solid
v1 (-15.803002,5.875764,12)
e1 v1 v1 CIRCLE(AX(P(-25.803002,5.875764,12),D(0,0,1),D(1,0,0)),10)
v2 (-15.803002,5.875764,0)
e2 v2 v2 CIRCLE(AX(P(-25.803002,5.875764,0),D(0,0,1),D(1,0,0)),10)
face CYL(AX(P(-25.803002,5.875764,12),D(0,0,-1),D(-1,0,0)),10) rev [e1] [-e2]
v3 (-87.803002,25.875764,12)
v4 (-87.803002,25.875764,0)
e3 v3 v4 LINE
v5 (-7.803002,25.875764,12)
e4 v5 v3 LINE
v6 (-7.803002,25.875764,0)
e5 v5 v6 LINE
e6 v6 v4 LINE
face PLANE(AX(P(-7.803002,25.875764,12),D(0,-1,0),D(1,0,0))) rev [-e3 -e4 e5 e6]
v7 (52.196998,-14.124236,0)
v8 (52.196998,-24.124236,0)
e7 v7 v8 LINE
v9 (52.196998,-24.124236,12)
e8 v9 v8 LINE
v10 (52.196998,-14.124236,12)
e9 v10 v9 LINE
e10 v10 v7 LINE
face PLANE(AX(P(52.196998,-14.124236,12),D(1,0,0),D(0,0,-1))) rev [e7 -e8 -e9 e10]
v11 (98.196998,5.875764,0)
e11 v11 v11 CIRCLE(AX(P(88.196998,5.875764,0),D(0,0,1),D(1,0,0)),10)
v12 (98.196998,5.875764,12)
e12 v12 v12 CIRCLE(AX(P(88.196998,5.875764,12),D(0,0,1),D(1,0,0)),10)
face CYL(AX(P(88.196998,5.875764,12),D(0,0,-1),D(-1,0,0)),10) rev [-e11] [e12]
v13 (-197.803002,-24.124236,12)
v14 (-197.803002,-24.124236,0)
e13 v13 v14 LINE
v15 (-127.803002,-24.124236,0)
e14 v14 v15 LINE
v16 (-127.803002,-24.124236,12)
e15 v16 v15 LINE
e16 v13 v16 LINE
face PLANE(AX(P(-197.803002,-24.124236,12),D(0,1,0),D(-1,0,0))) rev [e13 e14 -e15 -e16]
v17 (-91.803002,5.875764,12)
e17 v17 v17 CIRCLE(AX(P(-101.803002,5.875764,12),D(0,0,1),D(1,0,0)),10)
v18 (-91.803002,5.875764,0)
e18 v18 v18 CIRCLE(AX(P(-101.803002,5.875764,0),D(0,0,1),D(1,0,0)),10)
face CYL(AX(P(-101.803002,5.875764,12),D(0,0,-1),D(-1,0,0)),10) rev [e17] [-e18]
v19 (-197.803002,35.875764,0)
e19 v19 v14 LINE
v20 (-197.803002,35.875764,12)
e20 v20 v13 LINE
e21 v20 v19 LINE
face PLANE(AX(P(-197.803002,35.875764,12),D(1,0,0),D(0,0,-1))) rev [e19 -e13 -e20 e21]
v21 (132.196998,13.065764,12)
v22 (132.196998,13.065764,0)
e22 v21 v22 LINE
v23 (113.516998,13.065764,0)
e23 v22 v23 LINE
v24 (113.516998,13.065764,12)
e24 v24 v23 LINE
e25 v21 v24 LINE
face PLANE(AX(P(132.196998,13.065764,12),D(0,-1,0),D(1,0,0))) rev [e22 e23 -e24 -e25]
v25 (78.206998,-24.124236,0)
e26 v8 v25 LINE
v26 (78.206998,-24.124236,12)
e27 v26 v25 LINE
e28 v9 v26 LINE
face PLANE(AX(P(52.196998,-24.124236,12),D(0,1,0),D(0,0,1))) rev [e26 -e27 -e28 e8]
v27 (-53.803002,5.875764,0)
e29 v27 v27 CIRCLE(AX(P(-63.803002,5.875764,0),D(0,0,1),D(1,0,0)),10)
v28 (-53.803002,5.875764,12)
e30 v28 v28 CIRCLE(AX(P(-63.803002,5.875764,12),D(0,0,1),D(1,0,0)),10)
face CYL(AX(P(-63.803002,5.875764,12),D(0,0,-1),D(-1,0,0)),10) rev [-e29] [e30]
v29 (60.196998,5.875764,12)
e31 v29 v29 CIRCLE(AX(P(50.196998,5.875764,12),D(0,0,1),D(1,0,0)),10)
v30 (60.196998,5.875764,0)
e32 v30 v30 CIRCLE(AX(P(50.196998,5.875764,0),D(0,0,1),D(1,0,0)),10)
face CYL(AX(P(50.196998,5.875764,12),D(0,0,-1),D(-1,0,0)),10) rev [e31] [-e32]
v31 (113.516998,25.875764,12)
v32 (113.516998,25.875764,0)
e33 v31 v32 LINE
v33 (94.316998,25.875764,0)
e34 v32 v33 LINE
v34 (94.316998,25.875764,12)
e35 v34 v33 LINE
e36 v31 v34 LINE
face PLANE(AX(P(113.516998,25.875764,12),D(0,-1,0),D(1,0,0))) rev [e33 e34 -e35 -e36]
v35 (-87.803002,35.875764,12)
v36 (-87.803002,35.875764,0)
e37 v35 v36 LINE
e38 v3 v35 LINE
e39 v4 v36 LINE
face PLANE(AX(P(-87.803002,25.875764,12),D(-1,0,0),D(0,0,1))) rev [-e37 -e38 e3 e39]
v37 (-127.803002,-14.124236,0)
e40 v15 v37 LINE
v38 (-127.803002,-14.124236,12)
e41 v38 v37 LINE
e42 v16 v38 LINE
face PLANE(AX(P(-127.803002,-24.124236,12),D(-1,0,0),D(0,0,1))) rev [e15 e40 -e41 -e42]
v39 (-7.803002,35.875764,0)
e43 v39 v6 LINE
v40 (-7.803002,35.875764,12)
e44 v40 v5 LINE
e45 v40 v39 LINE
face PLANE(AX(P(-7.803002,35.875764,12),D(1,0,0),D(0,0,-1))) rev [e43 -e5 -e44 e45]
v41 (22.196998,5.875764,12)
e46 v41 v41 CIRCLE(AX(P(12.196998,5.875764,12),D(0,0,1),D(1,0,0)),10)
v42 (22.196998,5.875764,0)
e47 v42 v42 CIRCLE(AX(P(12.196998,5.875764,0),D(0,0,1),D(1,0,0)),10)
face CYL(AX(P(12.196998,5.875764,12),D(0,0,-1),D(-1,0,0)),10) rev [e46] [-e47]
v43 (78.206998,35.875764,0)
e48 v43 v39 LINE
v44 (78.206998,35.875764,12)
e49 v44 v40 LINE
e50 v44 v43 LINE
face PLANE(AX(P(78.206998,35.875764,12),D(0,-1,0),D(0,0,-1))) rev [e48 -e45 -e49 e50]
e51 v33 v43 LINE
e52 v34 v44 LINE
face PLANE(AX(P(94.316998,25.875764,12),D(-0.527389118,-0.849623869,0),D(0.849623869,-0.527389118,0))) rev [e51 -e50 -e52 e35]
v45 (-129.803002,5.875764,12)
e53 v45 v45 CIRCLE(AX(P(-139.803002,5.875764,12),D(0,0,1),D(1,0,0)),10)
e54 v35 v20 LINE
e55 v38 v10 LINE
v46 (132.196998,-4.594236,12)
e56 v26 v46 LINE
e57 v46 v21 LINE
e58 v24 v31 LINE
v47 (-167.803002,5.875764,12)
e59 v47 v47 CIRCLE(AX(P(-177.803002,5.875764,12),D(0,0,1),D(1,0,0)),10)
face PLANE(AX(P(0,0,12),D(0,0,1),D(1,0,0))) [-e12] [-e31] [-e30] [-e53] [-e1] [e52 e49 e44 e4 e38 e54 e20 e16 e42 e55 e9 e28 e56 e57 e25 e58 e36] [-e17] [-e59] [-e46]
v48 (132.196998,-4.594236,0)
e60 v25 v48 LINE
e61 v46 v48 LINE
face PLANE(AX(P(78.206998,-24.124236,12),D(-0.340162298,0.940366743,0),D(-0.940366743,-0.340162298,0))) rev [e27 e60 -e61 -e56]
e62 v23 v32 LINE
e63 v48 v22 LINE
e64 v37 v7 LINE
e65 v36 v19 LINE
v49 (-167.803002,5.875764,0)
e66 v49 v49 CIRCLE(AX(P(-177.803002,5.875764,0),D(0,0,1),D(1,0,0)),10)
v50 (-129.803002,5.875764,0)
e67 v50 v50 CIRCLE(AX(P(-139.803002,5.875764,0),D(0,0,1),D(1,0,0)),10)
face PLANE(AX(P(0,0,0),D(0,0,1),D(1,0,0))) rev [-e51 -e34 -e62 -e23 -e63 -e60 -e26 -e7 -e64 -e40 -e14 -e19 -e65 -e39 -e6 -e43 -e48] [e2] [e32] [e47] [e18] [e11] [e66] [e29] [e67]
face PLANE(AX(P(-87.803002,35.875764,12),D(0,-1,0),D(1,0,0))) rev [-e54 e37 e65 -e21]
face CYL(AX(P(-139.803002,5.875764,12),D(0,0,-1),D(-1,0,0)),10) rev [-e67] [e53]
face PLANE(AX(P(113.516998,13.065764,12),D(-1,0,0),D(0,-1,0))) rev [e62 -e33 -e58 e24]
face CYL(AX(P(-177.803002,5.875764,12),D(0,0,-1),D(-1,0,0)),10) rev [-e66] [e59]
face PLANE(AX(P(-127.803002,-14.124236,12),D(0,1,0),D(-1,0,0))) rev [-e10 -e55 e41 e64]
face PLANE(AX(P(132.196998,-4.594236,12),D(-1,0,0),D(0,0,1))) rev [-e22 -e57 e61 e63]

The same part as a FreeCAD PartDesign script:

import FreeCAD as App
import Part
import Sketcher


def add_polygon(sketch, points):
    """Adds a closed chain of lines whose ends are joined by coincident constraints."""
    first, n = sketch.GeometryCount, len(points)
    for a, b in zip(points, points[1:] + points[:1]):
        sketch.addGeometry(Part.LineSegment(App.Vector(*a, 0), App.Vector(*b, 0)), False)
    for i in range(n):
        sketch.addConstraint(Sketcher.Constraint("Coincident", first + i, 2, first + (i + 1) % n, 1))

doc = App.newDocument("Part")
body = doc.addObject("PartDesign::Body", "Body")

sketch1 = body.newObject("Sketcher::SketchObject", "Sketch")
sketch1.AttachmentSupport = (doc.getObject("XY_Plane"), [""])
sketch1.MapMode = "FlatFace"
add_polygon(sketch1, [(-197.803002, 35.875764), (-197.803002, -24.124236), (-127.803002, -24.124236), (-127.803002, -14.124236), (52.196998, -14.124236), (52.196998, -24.124236), (78.206998, -24.124236), (132.196998, -4.594236), (132.196998, 13.065764), (113.516998, 13.065764), (113.516998, 25.875764), (94.316998, 25.875764), (78.206998, 35.875764), (-7.803002, 35.875764), (-7.803002, 25.875764), (-87.803002, 25.875764), (-87.803002, 35.875764)])
sketch1.addGeometry(Part.Circle(App.Vector(-177.803002, 5.875764, 0), App.Vector(0, 0, 1), 10), False)
sketch1.addGeometry(Part.Circle(App.Vector(-139.803002, 5.875764, 0), App.Vector(0, 0, 1), 10), False)
sketch1.addGeometry(Part.Circle(App.Vector(-101.803002, 5.875764, 0), App.Vector(0, 0, 1), 10), False)
sketch1.addGeometry(Part.Circle(App.Vector(-63.803002, 5.875764, 0), App.Vector(0, 0, 1), 10), False)
sketch1.addGeometry(Part.Circle(App.Vector(-25.803002, 5.875764, 0), App.Vector(0, 0, 1), 10), False)
sketch1.addGeometry(Part.Circle(App.Vector(12.196998, 5.875764, 0), App.Vector(0, 0, 1), 10), False)
sketch1.addGeometry(Part.Circle(App.Vector(50.196998, 5.875764, 0), App.Vector(0, 0, 1), 10), False)
sketch1.addGeometry(Part.Circle(App.Vector(88.196998, 5.875764, 0), App.Vector(0, 0, 1), 10), False)
sketch1.addConstraint([
    Sketcher.Constraint("Vertical", 0),
    Sketcher.Constraint("Horizontal", 1),
    Sketcher.Constraint("Vertical", 2),
    Sketcher.Constraint("Horizontal", 3),
    Sketcher.Constraint("Vertical", 4),
    Sketcher.Constraint("Horizontal", 5),
    Sketcher.Constraint("Vertical", 7),
    Sketcher.Constraint("Horizontal", 8),
    Sketcher.Constraint("Vertical", 9),
    Sketcher.Constraint("Horizontal", 10),
    Sketcher.Constraint("Horizontal", 12),
    Sketcher.Constraint("Vertical", 13),
    Sketcher.Constraint("Horizontal", 14),
    Sketcher.Constraint("Vertical", 15),
    Sketcher.Constraint("Horizontal", 16),
    Sketcher.Constraint("Equal", 17, 18),
    Sketcher.Constraint("Equal", 18, 19),
    Sketcher.Constraint("Equal", 19, 20),
    Sketcher.Constraint("Equal", 20, 21),
    Sketcher.Constraint("Equal", 21, 22),
    Sketcher.Constraint("Equal", 22, 23),
    Sketcher.Constraint("Equal", 23, 24),
    Sketcher.Constraint("Horizontal", 17, 3, 18, 3),
    Sketcher.Constraint("Horizontal", 18, 3, 19, 3),
    Sketcher.Constraint("Horizontal", 19, 3, 20, 3),
    Sketcher.Constraint("Horizontal", 20, 3, 21, 3),
    Sketcher.Constraint("Horizontal", 21, 3, 22, 3),
    Sketcher.Constraint("Horizontal", 22, 3, 23, 3),
    Sketcher.Constraint("Horizontal", 23, 3, 24, 3),
    Sketcher.Constraint("Horizontal", 1, 2, 4, 2),
    Sketcher.Constraint("Horizontal", 10, 2, 13, 2),
    Sketcher.Constraint("Horizontal", 12, 2, 15, 2),
    Sketcher.Constraint("Vertical", 5, 2, 11, 2),
    Sketcher.Constraint("Equal", 4, 13),
    Sketcher.Constraint("Diameter", 17, 20.0),
    Sketcher.Constraint("DistanceX", 1, 1, 1, 2, 70.0),
    Sketcher.Constraint("DistanceX", 3, 1, 3, 2, 180.0),
    Sketcher.Constraint("DistanceX", 14, 2, 14, 1, 80.0),
    Sketcher.Constraint("DistanceX", 16, 2, 16, 1, 110.0),
    Sketcher.Constraint("DistanceY", 0, 2, 0, 1, 60.0),
    Sketcher.Constraint("DistanceY", 2, 1, 2, 2, 10.0),
    Sketcher.Constraint("DistanceX", 10, 2, 10, 1, 19.2),
    Sketcher.Constraint("DistanceX", 17, 3, 18, 3, 38.0),
    Sketcher.Constraint("DistanceX", 18, 3, 19, 3, 38.0),
    Sketcher.Constraint("DistanceX", 19, 3, 20, 3, 38.0),
    Sketcher.Constraint("DistanceX", 20, 3, 21, 3, 38.0),
    Sketcher.Constraint("DistanceX", 21, 3, 22, 3, 38.0),
    Sketcher.Constraint("DistanceX", 22, 3, 23, 3, 38.0),
    Sketcher.Constraint("DistanceX", 23, 3, 24, 3, 38.0),
    Sketcher.Constraint("DistanceX", 0, 2, 17, 3, 20.0),
    Sketcher.Constraint("DistanceY", 0, 2, 17, 3, 30.0),
    Sketcher.Constraint("DistanceX", 24, 3, 6, 2, 44.0),
    Sketcher.Constraint("DistanceX", 5, 1, 5, 2, 26.01),
    Sketcher.Constraint("DistanceX", 8, 2, 8, 1, 18.68),
    Sketcher.Constraint("DistanceY", 7, 1, 7, 2, 17.66),
    Sketcher.Constraint("DistanceY", 9, 1, 9, 2, 12.81),
    Sketcher.Constraint("DistanceX", 17, 3, -1, 1, 177.803002),
    Sketcher.Constraint("DistanceY", -1, 1, 17, 3, 5.875764),
])
pad1 = body.newObject("PartDesign::Pad", "Pad")
pad1.Profile = sketch1
pad1.Length = 12

doc.recompute()
